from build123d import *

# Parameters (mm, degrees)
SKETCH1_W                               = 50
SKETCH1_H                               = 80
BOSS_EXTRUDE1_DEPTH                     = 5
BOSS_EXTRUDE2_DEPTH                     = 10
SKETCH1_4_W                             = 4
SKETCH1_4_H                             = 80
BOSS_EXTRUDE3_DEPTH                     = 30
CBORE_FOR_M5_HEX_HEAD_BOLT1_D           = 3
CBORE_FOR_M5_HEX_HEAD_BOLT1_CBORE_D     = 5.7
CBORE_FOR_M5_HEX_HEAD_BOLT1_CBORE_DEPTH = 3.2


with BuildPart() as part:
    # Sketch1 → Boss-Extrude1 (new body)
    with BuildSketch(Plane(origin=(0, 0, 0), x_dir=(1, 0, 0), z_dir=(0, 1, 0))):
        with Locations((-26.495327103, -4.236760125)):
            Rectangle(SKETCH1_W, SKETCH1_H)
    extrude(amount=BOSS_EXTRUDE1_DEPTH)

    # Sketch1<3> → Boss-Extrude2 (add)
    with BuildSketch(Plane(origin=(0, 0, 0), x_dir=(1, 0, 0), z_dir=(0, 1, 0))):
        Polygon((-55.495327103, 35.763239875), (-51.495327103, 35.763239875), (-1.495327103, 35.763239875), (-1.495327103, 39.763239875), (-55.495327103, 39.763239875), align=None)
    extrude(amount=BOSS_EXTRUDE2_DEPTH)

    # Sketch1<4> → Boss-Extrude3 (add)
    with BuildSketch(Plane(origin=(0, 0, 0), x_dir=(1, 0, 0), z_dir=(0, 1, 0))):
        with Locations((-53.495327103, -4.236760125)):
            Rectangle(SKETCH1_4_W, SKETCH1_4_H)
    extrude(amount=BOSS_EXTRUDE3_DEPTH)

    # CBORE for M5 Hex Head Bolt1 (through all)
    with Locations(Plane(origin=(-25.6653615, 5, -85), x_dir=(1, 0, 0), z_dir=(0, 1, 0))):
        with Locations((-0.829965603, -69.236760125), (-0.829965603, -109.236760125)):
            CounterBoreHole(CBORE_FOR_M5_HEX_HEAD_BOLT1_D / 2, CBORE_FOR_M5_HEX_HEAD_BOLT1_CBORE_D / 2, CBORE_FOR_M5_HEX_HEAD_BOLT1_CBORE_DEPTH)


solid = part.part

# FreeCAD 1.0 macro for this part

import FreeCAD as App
import Part
import Sketcher
Q = App.Units.Quantity


def add_polygon(sketch, points):
    """Adds a closed chain of lines whose ends are joined by coincident constraints."""
    first, n = sketch.GeometryCount, len(points)
    for a, b in zip(points, points[1:] + points[:1]):
        sketch.addGeometry(Part.LineSegment(App.Vector(*a, 0), App.Vector(*b, 0)), False)
    for i in range(n):
        sketch.addConstraint(Sketcher.Constraint("Coincident", first + i, 2, first + (i + 1) % n, 1))

doc = App.newDocument("Part")
params = doc.addObject("Spreadsheet::Sheet", "Params")
for row, (alias, value) in enumerate([
    ("sketch1_width", "50 mm"),
    ("sketch1_height", "80 mm"),
    ("pad1_length", "5 mm"),
    ("sketch2_width", "54 mm"),
    ("sketch2_height", "4 mm"),
    ("pad2_length", "10 mm"),
    ("sketch3_width", "4 mm"),
    ("sketch3_height", "80 mm"),
    ("pad3_length", "30 mm"),
    ("sketch4_diameter", "3 mm"),
    ("hole_diameter", "3 mm"),
    ("hole_cbore_diameter", "5.7 mm"),
    ("hole_cbore_depth", "3.2 mm"),
], start=1):
    params.set(f"A{row}", alias)
    params.set(f"B{row}", "=" + value)
    params.setAlias(f"B{row}", alias)

body = doc.addObject("PartDesign::Body", "Body")

# Sketch on XZ plane
sketch1 = doc.addObject("Sketcher::SketchObject", "Sketch")
body.addObject(sketch1)
sketch1.AttachmentSupport = (doc.XZ_Plane, [""])
sketch1.MapMode = "FlatFace"
add_polygon(sketch1, [(-51, -36), (-51, 44), (-1, 44), (-1, -36)])  # lines 0-3
sketch1.addConstraint([
    Sketcher.Constraint("Vertical", 0),
    Sketcher.Constraint("Horizontal", 1),
    Sketcher.Constraint("Vertical", 2),
    Sketcher.Constraint("Horizontal", 3),
    Sketcher.Constraint("DistanceX", 1, 1, 1, 2, Q("50 mm")),
    Sketcher.Constraint("DistanceY", 0, 1, 0, 2, Q("80 mm")),
    Sketcher.Constraint("DistanceY", -1, 1, 0, 2, Q("44.23676 mm")),
    Sketcher.Constraint("DistanceX", 0, 2, -1, 1, Q("51.495327 mm")),
])
sketch1.setExpression("Constraints[8]", "Params.sketch1_width")
sketch1.setExpression("Constraints[9]", "Params.sketch1_height")
pad1 = doc.addObject("PartDesign::Pad", "Pad")
body.addObject(pad1)
pad1.Profile = sketch1
pad1.setExpression("Length", "Params.pad1_length")
pad1.Reversed = True

# Sketch on XZ plane
sketch2 = doc.addObject("Sketcher::SketchObject", "Sketch001")
body.addObject(sketch2)
sketch2.AttachmentSupport = (doc.XZ_Plane, [""])
sketch2.MapMode = "FlatFace"
add_polygon(sketch2, [(-55.5, -35.8), (-1.5, -35.8), (-1.5, -39.8), (-55.5, -39.8)])  # lines 0-3
sketch2.addConstraint([
    Sketcher.Constraint("Horizontal", 0),
    Sketcher.Constraint("Vertical", 1),
    Sketcher.Constraint("Horizontal", 2),
    Sketcher.Constraint("Vertical", 3),
    Sketcher.Constraint("DistanceX", 0, 1, 0, 2, Q("54 mm")),
    Sketcher.Constraint("DistanceY", 1, 2, 1, 1, Q("4 mm")),
    Sketcher.Constraint("DistanceY", 0, 2, -1, 1, Q("35.76324 mm")),
    Sketcher.Constraint("DistanceX", 0, 2, -1, 1, Q("1.495327 mm")),
])
sketch2.setExpression("Constraints[8]", "Params.sketch2_width")
sketch2.setExpression("Constraints[9]", "Params.sketch2_height")
pad2 = doc.addObject("PartDesign::Pad", "Pad001")
body.addObject(pad2)
pad2.Profile = sketch2
pad2.setExpression("Length", "Params.pad2_length")
pad2.Reversed = True

# Sketch on XZ plane
sketch3 = doc.addObject("Sketcher::SketchObject", "Sketch002")
body.addObject(sketch3)
sketch3.AttachmentSupport = (doc.XZ_Plane, [""])
sketch3.MapMode = "FlatFace"
add_polygon(sketch3, [(-55.5, -35.8), (-55.5, 44.2), (-51.5, 44.2), (-51.5, -35.8)])  # lines 0-3
sketch3.addConstraint([
    Sketcher.Constraint("Vertical", 0),
    Sketcher.Constraint("Horizontal", 1),
    Sketcher.Constraint("Vertical", 2),
    Sketcher.Constraint("Horizontal", 3),
    Sketcher.Constraint("DistanceX", 1, 1, 1, 2, Q("4 mm")),
    Sketcher.Constraint("DistanceY", 0, 1, 0, 2, Q("80 mm")),
    Sketcher.Constraint("DistanceY", -1, 1, 0, 2, Q("44.23676 mm")),
    Sketcher.Constraint("DistanceX", 0, 2, -1, 1, Q("55.495327 mm")),
])
sketch3.setExpression("Constraints[8]", "Params.sketch3_width")
sketch3.setExpression("Constraints[9]", "Params.sketch3_height")
pad3 = doc.addObject("PartDesign::Pad", "Pad002")
body.addObject(pad3)
pad3.Profile = sketch3
pad3.setExpression("Length", "Params.pad3_length")
pad3.Reversed = True

# Sketch on XZ plane
sketch4 = doc.addObject("Sketcher::SketchObject", "Sketch003")
body.addObject(sketch4)
sketch4.AttachmentSupport = (doc.XZ_Plane, [""])
sketch4.MapMode = "FlatFace"
sketch4.AttachmentOffset = App.Placement(App.Vector(0, 0, -5), App.Rotation())
sketch4.addGeometry([
    Part.Circle(App.Vector(-26.5, -15.8, 0), App.Vector(0, 0, 1), 1.5),
    Part.Circle(App.Vector(-26.5, 24.2, 0), App.Vector(0, 0, 1), 1.5),
], False)
sketch4.addConstraint([
    Sketcher.Constraint("Equal", 0, 1),
    Sketcher.Constraint("Vertical", 0, 3, 1, 3),
    Sketcher.Constraint("Diameter", 0, Q("3 mm")),
    Sketcher.Constraint("DistanceY", 0, 3, 1, 3, Q("40 mm")),
    Sketcher.Constraint("DistanceY", 0, 3, -1, 1, Q("15.76324 mm")),
    Sketcher.Constraint("DistanceX", 0, 3, -1, 1, Q("26.495327 mm")),
])
sketch4.setExpression("Constraints[2]", "Params.sketch4_diameter")
doc.recompute()
hole = doc.addObject("PartDesign::Hole", "Hole")
body.addObject(hole)
hole.Profile = sketch4
hole.ThreadType = "None"
hole.setExpression("Diameter", "Params.hole_diameter")
hole.DepthType = "ThroughAll"
hole.HoleCutType = "Counterbore"
hole.setExpression("HoleCutDiameter", "Params.hole_cbore_diameter")
hole.setExpression("HoleCutDepth", "Params.hole_cbore_depth")
hole.Reversed = True

doc.recompute()
